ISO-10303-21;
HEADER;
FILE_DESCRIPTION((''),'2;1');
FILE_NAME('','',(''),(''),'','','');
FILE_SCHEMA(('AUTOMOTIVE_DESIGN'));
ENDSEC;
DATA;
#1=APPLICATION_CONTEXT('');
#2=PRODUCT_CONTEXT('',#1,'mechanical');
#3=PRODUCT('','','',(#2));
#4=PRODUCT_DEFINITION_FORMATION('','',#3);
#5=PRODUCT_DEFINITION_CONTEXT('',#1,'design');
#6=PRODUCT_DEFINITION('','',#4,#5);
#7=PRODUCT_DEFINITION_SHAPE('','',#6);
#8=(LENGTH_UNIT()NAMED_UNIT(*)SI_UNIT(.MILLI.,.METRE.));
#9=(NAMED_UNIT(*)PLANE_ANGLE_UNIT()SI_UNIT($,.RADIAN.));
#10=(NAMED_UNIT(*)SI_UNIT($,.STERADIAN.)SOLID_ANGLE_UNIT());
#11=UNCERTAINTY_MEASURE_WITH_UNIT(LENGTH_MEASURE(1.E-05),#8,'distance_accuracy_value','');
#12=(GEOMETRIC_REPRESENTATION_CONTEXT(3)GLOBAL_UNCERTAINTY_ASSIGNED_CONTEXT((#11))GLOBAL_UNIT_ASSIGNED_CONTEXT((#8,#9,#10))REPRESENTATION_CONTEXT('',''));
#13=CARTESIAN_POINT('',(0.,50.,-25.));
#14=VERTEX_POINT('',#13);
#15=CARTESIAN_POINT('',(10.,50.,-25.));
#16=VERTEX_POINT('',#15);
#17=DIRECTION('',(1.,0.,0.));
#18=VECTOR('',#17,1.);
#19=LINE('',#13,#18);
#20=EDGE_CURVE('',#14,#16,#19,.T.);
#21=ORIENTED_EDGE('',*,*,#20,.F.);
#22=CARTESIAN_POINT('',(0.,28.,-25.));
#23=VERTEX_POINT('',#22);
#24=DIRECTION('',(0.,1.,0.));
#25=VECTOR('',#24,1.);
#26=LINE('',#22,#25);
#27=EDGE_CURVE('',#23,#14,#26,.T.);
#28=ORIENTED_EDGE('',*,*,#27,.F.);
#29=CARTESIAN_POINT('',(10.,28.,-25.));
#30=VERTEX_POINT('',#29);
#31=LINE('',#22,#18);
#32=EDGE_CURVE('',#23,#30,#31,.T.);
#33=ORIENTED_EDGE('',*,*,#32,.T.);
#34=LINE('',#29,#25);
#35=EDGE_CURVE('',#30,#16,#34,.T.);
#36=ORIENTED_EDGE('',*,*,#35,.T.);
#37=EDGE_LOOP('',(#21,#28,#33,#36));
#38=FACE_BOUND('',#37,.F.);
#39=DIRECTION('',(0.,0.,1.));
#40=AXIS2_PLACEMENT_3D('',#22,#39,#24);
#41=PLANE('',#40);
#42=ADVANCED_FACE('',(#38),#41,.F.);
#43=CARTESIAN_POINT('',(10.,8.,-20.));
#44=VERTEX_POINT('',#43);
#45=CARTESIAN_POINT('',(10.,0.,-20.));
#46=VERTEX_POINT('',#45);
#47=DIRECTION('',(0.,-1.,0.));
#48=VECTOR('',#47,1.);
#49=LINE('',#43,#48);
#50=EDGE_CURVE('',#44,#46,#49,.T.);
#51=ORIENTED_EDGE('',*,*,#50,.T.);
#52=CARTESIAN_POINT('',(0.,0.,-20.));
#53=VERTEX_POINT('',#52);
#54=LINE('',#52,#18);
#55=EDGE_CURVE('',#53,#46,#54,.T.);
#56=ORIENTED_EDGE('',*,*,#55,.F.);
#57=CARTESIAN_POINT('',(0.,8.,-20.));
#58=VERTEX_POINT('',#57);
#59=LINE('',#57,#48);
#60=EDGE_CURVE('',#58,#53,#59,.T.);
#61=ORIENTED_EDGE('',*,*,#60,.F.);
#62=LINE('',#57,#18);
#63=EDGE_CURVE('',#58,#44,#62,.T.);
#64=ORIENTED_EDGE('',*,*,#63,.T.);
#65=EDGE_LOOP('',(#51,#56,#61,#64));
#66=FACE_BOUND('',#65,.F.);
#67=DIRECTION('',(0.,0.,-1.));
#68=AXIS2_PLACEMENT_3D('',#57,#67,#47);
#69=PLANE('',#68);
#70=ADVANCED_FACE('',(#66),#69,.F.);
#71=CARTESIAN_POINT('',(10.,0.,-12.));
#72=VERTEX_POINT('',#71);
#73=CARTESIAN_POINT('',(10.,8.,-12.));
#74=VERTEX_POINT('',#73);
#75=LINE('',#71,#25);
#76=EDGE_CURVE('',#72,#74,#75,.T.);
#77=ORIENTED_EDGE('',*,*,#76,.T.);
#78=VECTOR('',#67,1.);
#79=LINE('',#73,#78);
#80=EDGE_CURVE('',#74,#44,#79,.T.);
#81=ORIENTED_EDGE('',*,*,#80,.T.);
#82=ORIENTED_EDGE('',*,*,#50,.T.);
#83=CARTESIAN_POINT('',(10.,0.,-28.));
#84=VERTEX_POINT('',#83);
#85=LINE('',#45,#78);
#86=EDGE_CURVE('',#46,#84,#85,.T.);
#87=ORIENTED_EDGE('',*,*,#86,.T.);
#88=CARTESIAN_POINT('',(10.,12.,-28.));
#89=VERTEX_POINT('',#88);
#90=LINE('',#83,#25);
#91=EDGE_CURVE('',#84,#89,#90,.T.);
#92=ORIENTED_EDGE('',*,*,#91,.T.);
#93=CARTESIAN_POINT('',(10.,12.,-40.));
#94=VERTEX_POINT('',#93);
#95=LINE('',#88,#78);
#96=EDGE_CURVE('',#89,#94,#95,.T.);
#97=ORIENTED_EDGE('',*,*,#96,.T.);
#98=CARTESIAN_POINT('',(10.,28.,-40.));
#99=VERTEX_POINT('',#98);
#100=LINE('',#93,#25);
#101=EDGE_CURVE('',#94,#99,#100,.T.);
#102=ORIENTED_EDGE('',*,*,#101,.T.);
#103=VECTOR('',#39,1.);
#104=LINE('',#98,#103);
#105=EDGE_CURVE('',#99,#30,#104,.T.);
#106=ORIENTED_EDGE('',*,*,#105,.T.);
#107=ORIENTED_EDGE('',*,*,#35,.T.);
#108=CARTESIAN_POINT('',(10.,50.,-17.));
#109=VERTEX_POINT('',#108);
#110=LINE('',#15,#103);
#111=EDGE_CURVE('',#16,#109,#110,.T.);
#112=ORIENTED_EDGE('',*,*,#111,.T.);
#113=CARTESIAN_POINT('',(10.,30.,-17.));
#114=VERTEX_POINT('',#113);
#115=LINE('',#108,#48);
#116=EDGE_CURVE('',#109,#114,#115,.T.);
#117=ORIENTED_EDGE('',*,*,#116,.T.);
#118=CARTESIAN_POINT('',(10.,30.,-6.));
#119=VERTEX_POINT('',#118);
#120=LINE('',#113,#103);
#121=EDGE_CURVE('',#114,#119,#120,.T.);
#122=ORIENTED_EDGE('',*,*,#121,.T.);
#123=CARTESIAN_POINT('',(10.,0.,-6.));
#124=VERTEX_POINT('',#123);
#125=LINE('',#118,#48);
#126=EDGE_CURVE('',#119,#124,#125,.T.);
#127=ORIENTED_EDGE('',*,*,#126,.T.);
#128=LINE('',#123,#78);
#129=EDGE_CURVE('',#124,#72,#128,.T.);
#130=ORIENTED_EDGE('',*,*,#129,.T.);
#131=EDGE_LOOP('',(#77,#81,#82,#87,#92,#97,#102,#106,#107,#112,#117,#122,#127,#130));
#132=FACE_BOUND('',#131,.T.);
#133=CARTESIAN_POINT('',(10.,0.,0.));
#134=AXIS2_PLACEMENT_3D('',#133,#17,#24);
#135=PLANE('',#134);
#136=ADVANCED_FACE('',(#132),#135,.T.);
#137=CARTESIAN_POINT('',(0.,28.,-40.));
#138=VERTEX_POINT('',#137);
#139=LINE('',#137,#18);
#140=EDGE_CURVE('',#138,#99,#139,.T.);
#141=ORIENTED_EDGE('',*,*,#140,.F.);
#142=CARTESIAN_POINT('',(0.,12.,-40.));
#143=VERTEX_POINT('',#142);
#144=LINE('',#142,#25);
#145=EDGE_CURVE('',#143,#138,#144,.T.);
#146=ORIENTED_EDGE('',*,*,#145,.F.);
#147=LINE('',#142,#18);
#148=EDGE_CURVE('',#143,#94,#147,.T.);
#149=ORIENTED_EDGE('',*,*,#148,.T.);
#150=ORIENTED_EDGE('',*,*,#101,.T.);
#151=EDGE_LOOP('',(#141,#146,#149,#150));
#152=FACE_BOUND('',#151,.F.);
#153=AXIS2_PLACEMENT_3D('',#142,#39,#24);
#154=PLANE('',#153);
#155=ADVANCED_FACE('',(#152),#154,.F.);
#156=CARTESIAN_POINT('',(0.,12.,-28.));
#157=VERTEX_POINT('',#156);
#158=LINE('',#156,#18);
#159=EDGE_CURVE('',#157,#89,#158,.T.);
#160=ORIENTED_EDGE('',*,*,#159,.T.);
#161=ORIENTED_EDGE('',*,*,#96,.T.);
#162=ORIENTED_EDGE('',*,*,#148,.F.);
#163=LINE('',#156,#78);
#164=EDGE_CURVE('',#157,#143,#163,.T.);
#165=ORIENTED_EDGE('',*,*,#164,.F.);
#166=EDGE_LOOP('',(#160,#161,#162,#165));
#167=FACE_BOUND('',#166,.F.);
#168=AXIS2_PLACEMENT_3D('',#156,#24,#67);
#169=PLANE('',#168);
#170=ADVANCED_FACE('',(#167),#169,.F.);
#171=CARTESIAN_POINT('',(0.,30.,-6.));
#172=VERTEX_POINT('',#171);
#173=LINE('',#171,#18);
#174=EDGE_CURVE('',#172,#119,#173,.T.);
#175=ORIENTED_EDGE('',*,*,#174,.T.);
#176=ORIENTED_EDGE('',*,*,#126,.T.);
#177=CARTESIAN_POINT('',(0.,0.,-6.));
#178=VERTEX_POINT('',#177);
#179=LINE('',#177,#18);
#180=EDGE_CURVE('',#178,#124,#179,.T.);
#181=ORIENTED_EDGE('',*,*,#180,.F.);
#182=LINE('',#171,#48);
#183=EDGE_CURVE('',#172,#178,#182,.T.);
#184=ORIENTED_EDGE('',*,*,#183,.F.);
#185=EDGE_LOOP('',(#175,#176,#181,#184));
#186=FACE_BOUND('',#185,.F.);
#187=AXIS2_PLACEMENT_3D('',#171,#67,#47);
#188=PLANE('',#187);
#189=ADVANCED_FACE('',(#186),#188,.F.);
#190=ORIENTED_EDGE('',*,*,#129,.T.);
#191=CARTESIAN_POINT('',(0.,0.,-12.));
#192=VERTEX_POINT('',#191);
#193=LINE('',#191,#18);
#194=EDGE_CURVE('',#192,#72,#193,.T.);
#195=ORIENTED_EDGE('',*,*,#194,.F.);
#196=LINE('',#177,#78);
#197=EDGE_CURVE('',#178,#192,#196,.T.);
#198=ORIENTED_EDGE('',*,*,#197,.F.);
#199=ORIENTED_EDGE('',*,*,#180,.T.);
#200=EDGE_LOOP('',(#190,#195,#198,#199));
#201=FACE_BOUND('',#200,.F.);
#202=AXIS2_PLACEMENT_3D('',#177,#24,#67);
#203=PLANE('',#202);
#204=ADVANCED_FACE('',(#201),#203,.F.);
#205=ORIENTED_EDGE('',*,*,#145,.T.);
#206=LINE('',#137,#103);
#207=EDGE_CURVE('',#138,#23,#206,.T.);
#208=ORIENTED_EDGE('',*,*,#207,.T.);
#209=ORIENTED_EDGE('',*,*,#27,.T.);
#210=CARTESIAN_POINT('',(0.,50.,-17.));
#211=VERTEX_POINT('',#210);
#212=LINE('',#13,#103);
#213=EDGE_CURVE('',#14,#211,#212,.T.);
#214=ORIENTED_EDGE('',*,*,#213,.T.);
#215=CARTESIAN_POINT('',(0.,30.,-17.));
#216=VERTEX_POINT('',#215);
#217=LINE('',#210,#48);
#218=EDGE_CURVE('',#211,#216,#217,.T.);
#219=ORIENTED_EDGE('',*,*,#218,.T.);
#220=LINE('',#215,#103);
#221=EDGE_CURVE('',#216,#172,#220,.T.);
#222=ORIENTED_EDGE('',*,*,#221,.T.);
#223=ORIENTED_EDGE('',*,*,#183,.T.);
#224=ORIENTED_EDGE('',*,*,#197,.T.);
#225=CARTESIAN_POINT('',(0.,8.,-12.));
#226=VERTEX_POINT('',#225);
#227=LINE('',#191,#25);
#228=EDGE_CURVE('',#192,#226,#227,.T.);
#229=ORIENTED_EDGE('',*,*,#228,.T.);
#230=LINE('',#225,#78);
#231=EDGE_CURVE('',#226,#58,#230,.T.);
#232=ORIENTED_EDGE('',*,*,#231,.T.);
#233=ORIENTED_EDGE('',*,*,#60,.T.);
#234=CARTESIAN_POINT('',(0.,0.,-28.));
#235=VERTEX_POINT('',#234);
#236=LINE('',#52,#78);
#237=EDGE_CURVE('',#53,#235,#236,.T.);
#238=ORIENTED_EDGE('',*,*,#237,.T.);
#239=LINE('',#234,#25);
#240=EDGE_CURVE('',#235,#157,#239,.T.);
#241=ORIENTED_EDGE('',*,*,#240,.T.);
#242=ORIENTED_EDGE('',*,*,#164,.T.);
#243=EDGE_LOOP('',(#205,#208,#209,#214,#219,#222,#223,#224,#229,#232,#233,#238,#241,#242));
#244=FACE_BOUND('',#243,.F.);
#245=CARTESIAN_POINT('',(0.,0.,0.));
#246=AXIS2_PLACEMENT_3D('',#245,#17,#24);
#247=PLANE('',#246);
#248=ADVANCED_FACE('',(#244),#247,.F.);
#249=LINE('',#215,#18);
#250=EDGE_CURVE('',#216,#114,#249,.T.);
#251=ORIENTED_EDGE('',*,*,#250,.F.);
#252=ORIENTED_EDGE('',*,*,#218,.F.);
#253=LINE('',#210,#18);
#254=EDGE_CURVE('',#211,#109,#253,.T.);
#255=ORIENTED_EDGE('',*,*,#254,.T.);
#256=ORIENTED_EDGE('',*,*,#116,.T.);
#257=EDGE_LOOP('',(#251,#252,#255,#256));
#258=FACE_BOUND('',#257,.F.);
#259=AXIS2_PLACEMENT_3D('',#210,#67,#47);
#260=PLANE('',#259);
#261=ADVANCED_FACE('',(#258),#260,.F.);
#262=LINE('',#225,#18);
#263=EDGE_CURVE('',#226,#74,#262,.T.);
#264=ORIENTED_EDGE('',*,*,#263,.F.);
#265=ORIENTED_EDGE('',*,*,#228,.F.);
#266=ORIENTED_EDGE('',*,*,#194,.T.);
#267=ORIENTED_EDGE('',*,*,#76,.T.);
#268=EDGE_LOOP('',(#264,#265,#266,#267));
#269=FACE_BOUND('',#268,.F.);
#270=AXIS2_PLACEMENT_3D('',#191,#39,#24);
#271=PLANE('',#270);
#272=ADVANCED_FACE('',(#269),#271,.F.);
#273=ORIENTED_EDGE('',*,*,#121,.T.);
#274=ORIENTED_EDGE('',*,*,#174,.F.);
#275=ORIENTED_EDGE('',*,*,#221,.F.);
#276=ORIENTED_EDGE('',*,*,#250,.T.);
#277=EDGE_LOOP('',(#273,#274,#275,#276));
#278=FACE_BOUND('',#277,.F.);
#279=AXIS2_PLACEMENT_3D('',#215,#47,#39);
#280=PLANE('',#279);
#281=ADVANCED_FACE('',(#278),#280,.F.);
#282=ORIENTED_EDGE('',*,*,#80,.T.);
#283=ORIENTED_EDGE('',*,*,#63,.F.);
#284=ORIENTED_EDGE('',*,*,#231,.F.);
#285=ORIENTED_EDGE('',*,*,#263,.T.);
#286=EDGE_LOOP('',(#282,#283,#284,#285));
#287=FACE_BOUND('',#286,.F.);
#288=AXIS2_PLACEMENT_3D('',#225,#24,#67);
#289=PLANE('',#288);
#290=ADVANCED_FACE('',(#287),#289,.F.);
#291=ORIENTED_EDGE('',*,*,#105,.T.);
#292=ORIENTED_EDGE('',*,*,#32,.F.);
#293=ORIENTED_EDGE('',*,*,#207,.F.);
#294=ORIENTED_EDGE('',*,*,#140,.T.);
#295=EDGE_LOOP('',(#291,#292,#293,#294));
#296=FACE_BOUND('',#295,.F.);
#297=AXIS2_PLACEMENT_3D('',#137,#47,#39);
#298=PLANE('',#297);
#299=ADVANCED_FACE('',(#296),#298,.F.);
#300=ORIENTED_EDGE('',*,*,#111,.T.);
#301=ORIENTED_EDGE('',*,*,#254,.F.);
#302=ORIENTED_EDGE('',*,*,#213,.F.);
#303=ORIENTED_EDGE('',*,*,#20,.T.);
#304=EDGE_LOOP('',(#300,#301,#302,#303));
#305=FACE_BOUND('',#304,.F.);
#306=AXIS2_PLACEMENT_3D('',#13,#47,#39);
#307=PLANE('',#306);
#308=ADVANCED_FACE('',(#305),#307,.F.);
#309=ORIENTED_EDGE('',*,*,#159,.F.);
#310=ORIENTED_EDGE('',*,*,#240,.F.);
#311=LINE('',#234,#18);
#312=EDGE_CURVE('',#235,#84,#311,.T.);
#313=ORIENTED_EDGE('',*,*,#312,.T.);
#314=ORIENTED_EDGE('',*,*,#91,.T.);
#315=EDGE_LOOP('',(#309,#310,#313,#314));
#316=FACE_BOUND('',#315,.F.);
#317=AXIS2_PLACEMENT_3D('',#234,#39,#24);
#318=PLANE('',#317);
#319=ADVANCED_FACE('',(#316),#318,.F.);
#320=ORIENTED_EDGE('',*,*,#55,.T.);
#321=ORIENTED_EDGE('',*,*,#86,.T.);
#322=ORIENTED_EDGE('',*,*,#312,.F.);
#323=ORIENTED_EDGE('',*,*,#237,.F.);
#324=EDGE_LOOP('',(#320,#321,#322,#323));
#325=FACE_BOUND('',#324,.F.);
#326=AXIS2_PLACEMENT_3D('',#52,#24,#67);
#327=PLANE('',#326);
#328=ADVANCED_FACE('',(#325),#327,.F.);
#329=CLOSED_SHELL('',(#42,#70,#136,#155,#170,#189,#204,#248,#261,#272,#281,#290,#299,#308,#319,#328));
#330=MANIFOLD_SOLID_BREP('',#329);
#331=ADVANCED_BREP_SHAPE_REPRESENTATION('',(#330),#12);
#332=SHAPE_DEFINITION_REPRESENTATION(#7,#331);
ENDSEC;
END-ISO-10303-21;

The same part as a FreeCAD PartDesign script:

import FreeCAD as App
import Part
import Sketcher
from FreeCAD import Vector
Q = App.Units.Quantity

doc = App.newDocument("Part")
body = doc.addObject("PartDesign::Body", "Body")

sketch1 = body.newObject("Sketcher::SketchObject", "Sketch")
sketch1.AttachmentSupport = (doc.getObject("YZ_Plane"), [""])
sketch1.MapMode = "FlatFace"
sketch1.addGeometry([
    Part.LineSegment(Vector(30, -6, 0), Vector(0, -6, 0)),
    Part.LineSegment(Vector(0, -6, 0), Vector(0, -12, 0)),
    Part.LineSegment(Vector(0, -12, 0), Vector(8, -12, 0)),
    Part.LineSegment(Vector(8, -12, 0), Vector(8, -20, 0)),
    Part.LineSegment(Vector(8, -20, 0), Vector(0, -20, 0)),
    Part.LineSegment(Vector(0, -20, 0), Vector(0, -28, 0)),
    Part.LineSegment(Vector(0, -28, 0), Vector(12, -28, 0)),
    Part.LineSegment(Vector(12, -28, 0), Vector(12, -40, 0)),
    Part.LineSegment(Vector(12, -40, 0), Vector(28, -40, 0)),
    Part.LineSegment(Vector(28, -40, 0), Vector(28, -25, 0)),
    Part.LineSegment(Vector(28, -25, 0), Vector(50, -25, 0)),
    Part.LineSegment(Vector(50, -25, 0), Vector(50, -17, 0)),
    Part.LineSegment(Vector(50, -17, 0), Vector(30, -17, 0)),
    Part.LineSegment(Vector(30, -17, 0), Vector(30, -6, 0)),
], False)
sketch1.addConstraint([
    Sketcher.Constraint("Coincident", 0, 2, 1, 1),
    Sketcher.Constraint("Coincident", 1, 2, 2, 1),
    Sketcher.Constraint("Coincident", 2, 2, 3, 1),
    Sketcher.Constraint("Coincident", 3, 2, 4, 1),
    Sketcher.Constraint("Coincident", 4, 2, 5, 1),
    Sketcher.Constraint("Coincident", 5, 2, 6, 1),
    Sketcher.Constraint("Coincident", 6, 2, 7, 1),
    Sketcher.Constraint("Coincident", 7, 2, 8, 1),
    Sketcher.Constraint("Coincident", 8, 2, 9, 1),
    Sketcher.Constraint("Coincident", 9, 2, 10, 1),
    Sketcher.Constraint("Coincident", 10, 2, 11, 1),
    Sketcher.Constraint("Coincident", 11, 2, 12, 1),
    Sketcher.Constraint("Coincident", 12, 2, 13, 1),
    Sketcher.Constraint("Coincident", 13, 2, 0, 1),
    Sketcher.Constraint("Horizontal", 0),
    Sketcher.Constraint("Vertical", 1),
    Sketcher.Constraint("Horizontal", 2),
    Sketcher.Constraint("Vertical", 3),
    Sketcher.Constraint("Horizontal", 4),
    Sketcher.Constraint("Vertical", 5),
    Sketcher.Constraint("Horizontal", 6),
    Sketcher.Constraint("Vertical", 7),
    Sketcher.Constraint("Horizontal", 8),
    Sketcher.Constraint("Vertical", 9),
    Sketcher.Constraint("Horizontal", 10),
    Sketcher.Constraint("Vertical", 11),
    Sketcher.Constraint("Horizontal", 12),
    Sketcher.Constraint("Vertical", 13),
    Sketcher.Constraint("PointOnObject", 0, 2, -2),
    Sketcher.Constraint("PointOnObject", 4, 2, -2),
    Sketcher.Constraint("Equal", 4, 3),
    Sketcher.Constraint("Equal", 3, 5),
    Sketcher.Constraint("Equal", 6, 7),
    Sketcher.Constraint("Equal", 5, 11),
    Sketcher.Constraint("DistanceX", 0, 2, 0, 1, Q("30 mm")),
    Sketcher.Constraint("DistanceX", 2, 1, 2, 2, Q("8 mm")),
    Sketcher.Constraint("DistanceX", 6, 1, 6, 2, Q("12 mm")),
    Sketcher.Constraint("DistanceX", 8, 1, 8, 2, Q("16 mm")),
    Sketcher.Constraint("DistanceX", 10, 1, 10, 2, Q("22 mm")),
    Sketcher.Constraint("DistanceY", 1, 2, 1, 1, Q("6 mm")),
    Sketcher.Constraint("DistanceY", 9, 1, 9, 2, Q("15 mm")),
    Sketcher.Constraint("DistanceY", 0, 2, -1, 1, Q("6 mm")),
])
pad1 = body.newObject("PartDesign::Pad", "Pad")
pad1.Profile = sketch1
pad1.Length = 10

doc.recompute()
